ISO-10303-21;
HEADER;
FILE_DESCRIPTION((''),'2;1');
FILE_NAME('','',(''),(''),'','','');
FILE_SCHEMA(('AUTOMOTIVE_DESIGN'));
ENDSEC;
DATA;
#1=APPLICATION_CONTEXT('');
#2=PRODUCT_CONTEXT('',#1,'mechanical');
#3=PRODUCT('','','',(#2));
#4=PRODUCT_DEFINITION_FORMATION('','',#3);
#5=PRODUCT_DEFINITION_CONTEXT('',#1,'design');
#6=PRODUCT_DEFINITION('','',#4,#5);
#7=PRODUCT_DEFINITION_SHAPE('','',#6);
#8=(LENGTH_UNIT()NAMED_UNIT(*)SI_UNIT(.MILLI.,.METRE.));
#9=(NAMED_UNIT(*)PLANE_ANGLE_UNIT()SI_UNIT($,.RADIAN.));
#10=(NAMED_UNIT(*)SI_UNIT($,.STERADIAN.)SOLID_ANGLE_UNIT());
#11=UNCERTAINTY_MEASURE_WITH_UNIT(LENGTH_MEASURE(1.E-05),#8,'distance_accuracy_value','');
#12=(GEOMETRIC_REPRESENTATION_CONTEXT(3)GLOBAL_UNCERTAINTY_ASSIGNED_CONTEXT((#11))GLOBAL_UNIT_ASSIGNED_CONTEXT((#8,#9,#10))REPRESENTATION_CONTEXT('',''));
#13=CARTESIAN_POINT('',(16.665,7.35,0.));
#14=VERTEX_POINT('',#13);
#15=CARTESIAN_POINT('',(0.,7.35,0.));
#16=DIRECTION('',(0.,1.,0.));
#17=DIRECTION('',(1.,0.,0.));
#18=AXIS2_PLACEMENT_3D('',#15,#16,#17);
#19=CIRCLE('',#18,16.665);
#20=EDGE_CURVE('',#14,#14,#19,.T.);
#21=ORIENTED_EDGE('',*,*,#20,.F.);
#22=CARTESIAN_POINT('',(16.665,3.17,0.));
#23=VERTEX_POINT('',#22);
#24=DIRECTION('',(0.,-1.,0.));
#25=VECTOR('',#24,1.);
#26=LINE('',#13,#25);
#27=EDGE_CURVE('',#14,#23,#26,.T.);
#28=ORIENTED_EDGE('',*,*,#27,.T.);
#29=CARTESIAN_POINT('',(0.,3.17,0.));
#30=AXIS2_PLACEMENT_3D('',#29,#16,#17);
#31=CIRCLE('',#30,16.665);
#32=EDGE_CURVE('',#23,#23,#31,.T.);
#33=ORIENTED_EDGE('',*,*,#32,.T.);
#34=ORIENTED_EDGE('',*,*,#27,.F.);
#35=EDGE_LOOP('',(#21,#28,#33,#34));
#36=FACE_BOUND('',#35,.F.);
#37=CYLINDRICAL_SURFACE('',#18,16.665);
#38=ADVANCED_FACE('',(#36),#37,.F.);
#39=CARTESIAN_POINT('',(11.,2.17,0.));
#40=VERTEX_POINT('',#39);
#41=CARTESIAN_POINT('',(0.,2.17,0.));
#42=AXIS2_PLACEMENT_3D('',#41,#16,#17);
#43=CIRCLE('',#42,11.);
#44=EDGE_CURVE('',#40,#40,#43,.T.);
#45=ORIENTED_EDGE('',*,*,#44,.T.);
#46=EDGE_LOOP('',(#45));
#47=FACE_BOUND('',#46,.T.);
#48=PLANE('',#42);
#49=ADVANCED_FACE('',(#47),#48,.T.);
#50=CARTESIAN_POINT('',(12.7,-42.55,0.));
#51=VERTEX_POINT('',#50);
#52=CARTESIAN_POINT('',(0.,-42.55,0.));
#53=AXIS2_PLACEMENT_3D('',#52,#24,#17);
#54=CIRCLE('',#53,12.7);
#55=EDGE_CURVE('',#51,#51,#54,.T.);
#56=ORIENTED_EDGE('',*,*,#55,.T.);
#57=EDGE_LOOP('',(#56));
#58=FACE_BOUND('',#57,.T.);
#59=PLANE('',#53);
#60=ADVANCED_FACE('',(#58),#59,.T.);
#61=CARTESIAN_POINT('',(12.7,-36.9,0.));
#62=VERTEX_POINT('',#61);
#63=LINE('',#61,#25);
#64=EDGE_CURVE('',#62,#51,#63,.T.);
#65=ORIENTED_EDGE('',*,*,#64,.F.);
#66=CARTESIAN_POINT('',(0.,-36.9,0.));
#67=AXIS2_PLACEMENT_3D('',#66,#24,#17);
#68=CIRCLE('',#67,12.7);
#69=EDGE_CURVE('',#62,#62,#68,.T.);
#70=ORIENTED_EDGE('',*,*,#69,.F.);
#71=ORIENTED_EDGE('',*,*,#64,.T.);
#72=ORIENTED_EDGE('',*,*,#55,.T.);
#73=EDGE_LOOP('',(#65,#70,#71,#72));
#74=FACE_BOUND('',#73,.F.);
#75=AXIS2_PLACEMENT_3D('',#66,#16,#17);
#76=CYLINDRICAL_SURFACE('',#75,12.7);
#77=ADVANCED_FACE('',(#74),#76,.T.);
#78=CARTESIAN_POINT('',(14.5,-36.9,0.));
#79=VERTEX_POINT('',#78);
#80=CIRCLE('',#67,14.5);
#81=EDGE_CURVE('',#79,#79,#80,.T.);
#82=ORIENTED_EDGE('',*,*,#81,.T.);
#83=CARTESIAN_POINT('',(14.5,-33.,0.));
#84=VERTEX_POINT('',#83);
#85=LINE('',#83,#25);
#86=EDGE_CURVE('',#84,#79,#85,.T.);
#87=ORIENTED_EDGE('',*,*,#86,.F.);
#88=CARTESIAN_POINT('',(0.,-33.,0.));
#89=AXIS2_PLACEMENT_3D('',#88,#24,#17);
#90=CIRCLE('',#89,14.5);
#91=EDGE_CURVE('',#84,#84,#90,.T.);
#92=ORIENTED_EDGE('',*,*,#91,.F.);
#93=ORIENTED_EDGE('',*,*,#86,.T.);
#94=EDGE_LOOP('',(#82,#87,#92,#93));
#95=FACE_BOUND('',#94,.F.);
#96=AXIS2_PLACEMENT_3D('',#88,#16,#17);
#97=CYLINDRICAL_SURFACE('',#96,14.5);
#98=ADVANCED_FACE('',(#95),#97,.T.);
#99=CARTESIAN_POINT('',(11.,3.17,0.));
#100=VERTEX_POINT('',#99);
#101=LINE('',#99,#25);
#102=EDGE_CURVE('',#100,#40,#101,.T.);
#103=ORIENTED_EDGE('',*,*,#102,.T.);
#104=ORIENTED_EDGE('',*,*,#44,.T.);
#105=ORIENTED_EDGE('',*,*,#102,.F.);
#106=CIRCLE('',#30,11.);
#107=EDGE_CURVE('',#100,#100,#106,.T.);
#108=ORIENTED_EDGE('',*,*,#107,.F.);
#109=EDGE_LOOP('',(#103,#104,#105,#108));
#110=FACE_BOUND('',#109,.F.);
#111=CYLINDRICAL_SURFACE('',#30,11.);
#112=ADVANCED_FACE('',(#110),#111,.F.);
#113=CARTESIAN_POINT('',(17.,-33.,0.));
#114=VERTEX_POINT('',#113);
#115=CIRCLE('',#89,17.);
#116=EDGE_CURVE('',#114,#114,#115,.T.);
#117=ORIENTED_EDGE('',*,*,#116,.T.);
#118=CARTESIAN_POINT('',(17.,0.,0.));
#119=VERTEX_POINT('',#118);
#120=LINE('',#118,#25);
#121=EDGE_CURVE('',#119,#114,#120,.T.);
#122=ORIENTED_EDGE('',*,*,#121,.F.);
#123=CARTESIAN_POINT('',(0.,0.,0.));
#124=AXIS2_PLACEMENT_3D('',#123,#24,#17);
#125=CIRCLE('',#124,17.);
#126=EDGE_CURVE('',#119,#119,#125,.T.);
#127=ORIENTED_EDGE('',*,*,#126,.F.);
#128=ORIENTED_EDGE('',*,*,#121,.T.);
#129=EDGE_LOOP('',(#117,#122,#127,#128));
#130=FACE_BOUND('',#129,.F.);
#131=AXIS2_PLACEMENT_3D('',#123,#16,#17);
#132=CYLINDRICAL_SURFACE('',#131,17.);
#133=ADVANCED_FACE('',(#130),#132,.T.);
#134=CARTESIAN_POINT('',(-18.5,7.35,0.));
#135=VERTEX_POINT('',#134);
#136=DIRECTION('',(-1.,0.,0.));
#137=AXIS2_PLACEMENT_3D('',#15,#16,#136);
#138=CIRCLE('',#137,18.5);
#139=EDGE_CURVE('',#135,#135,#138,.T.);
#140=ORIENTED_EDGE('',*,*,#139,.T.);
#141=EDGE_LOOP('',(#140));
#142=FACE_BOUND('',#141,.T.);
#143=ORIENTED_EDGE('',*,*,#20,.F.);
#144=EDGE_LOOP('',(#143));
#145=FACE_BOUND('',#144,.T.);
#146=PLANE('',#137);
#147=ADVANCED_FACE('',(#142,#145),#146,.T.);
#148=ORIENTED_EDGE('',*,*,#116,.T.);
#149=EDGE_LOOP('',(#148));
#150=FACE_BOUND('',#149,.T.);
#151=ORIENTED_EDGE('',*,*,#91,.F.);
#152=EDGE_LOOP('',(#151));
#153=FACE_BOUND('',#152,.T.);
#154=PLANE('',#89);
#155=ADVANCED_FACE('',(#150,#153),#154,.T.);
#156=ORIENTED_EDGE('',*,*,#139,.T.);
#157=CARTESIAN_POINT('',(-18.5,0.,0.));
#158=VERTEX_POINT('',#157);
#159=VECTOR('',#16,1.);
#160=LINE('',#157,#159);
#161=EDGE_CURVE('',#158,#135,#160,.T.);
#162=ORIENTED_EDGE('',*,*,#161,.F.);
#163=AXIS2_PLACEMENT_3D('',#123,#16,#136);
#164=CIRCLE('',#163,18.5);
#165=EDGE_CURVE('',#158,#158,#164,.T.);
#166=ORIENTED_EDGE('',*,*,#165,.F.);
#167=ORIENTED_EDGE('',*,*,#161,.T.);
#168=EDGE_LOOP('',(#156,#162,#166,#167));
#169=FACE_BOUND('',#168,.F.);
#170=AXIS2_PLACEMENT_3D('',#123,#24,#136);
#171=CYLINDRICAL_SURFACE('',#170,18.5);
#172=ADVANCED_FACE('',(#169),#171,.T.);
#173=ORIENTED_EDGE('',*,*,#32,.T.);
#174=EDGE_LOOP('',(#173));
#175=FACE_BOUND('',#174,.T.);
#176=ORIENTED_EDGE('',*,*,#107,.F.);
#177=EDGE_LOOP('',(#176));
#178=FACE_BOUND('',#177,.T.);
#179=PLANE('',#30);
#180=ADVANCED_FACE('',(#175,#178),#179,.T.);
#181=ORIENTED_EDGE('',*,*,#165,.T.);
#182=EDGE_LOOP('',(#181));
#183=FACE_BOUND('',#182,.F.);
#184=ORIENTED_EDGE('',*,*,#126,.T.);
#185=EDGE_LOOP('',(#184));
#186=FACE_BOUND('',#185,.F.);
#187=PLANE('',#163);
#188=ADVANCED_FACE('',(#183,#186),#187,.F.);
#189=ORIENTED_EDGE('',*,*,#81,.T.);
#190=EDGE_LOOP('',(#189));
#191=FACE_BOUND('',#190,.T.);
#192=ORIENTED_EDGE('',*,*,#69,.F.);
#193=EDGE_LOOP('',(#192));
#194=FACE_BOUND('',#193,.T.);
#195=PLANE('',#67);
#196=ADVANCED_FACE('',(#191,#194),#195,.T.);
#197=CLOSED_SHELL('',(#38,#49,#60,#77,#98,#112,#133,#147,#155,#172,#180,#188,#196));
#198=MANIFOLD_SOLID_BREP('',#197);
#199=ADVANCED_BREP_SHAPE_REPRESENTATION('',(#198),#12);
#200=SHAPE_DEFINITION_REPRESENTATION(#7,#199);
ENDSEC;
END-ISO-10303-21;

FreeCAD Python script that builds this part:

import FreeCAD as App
import Part
import Sketcher

V = App.Vector

doc = App.newDocument("Part")
body = doc.addObject("PartDesign::Body", "Body")

sketch1 = body.newObject("Sketcher::SketchObject", "Sketch")
sketch1.AttachmentSupport = (doc.getObject("XZ_Plane"), [""])
sketch1.MapMode = "FlatFace"
sketch1.addGeometry(Part.Circle(V(0, 0, 0), V(0, 0, 1), 18.5), False)
sketch1.addConstraint([
    Sketcher.Constraint("Coincident", 0, 3, -1, 1),
    Sketcher.Constraint("Diameter", 0, 37.0),
])
pad1 = body.newObject("PartDesign::Pad", "Pad")
pad1.Profile = sketch1
pad1.Length = 7.35
pad1.Reversed = True

sketch2 = body.newObject("Sketcher::SketchObject", "Sketch001")
sketch2.AttachmentSupport = (doc.getObject("XZ_Plane"), [""])
sketch2.MapMode = "FlatFace"
sketch2.AttachmentOffset = App.Placement(V(0, 0, -7.35), App.Rotation())
sketch2.addGeometry(Part.Circle(V(0, 0, 0), V(0, 0, 1), 16.665), False)
sketch2.addConstraint([
    Sketcher.Constraint("Coincident", 0, 3, -1, 1),
    Sketcher.Constraint("Diameter", 0, 33.33),
])
pocket1 = body.newObject("PartDesign::Pocket", "Pocket")
pocket1.Profile = sketch2
pocket1.Length = 4.18
pocket1.Reversed = True

sketch3 = body.newObject("Sketcher::SketchObject", "Sketch002")
sketch3.AttachmentSupport = (doc.getObject("XZ_Plane"), [""])
sketch3.MapMode = "FlatFace"
sketch3.addGeometry(Part.Circle(V(0, 0, 0), V(0, 0, 1), 17), False)
sketch3.addConstraint([
    Sketcher.Constraint("Coincident", 0, 3, -1, 1),
    Sketcher.Constraint("Diameter", 0, 34.0),
])
pad2 = body.newObject("PartDesign::Pad", "Pad001")
pad2.Profile = sketch3
pad2.Length = 33

sketch4 = body.newObject("Sketcher::SketchObject", "Sketch003")
sketch4.AttachmentSupport = (doc.getObject("XZ_Plane"), [""])
sketch4.MapMode = "FlatFace"
sketch4.AttachmentOffset = App.Placement(V(0, 0, 33), App.Rotation())
sketch4.addGeometry(Part.Circle(V(0, 0, 0), V(0, 0, 1), 14.5), False)
sketch4.addConstraint([
    Sketcher.Constraint("Coincident", 0, 3, -1, 1),
    Sketcher.Constraint("Diameter", 0, 29.0),
])
pad3 = body.newObject("PartDesign::Pad", "Pad002")
pad3.Profile = sketch4
pad3.Length = 3.9

sketch5 = body.newObject("Sketcher::SketchObject", "Sketch004")
sketch5.AttachmentSupport = (doc.getObject("XZ_Plane"), [""])
sketch5.MapMode = "FlatFace"
sketch5.AttachmentOffset = App.Placement(V(0, 0, 36.9), App.Rotation())
sketch5.addGeometry(Part.Circle(V(0, 0, 0), V(0, 0, 1), 12.7), False)
sketch5.addConstraint([
    Sketcher.Constraint("Coincident", 0, 3, -1, 1),
    Sketcher.Constraint("Diameter", 0, 25.4),
])
pad4 = body.newObject("PartDesign::Pad", "Pad003")
pad4.Profile = sketch5
pad4.Length = 5.65

sketch6 = body.newObject("Sketcher::SketchObject", "Sketch005")
sketch6.AttachmentSupport = (doc.getObject("XZ_Plane"), [""])
sketch6.MapMode = "FlatFace"
sketch6.AttachmentOffset = App.Placement(V(0, 0, -3.17), App.Rotation())
sketch6.addGeometry(Part.Circle(V(0, 0, 0), V(0, 0, 1), 11), False)
sketch6.addConstraint([
    Sketcher.Constraint("Coincident", 0, 3, -1, 1),
    Sketcher.Constraint("Diameter", 0, 22.0),
])
pocket2 = body.newObject("PartDesign::Pocket", "Pocket001")
pocket2.Profile = sketch6
pocket2.Length = 1
pocket2.Reversed = True

doc.recompute()
